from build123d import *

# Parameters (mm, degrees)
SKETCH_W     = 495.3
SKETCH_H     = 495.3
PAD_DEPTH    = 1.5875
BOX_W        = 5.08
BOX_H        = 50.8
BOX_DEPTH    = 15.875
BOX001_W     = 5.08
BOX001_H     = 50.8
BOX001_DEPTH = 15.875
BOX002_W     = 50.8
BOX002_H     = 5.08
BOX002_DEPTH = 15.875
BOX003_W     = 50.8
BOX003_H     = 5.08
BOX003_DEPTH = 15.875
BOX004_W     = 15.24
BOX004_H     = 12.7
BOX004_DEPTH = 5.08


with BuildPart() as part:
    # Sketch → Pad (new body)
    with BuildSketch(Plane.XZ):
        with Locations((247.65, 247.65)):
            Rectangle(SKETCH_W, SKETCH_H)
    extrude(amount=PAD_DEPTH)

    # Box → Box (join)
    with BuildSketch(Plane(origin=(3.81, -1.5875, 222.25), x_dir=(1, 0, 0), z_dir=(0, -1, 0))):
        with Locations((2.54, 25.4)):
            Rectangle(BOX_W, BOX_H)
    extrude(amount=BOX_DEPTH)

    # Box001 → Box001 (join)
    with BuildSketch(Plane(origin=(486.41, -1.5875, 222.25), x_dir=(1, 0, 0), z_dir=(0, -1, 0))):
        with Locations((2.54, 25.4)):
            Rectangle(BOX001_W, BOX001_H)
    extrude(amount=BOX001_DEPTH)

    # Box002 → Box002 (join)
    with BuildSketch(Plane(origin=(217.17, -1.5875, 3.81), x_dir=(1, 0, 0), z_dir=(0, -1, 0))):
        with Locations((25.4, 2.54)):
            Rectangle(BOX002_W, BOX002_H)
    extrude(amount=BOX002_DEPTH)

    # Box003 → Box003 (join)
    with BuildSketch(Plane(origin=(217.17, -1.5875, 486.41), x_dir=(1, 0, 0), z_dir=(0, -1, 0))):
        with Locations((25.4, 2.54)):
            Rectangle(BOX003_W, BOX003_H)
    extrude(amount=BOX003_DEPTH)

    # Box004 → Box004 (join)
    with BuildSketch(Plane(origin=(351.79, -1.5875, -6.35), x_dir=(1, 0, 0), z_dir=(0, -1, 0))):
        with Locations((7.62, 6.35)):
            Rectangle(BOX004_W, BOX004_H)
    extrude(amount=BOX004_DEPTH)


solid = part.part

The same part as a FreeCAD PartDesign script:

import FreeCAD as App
import Part
import Sketcher

V = App.Vector
Q = App.Units.Quantity

doc = App.newDocument("Part")
params = doc.addObject("Spreadsheet::Sheet", "Params")
for row, (alias, value) in enumerate([
    ("sketch1_width", "19.5 in"),
    ("pad1_length", "0.0625 in"),
    ("sketch2_height", "2 in"),
    ("sketch2_width", "0.2 in"),
    ("pad2_length", "0.625 in"),
    ("sketch3_height", "2 in"),
    ("sketch3_width", "0.2 in"),
    ("pad3_length", "0.625 in"),
    ("sketch4_width", "2 in"),
    ("sketch4_height", "0.2 in"),
    ("pad4_length", "0.625 in"),
    ("sketch5_width", "2 in"),
    ("sketch5_height", "0.2 in"),
    ("pad5_length", "0.625 in"),
    ("sketch6_width", "0.6 in"),
    ("sketch6_height", "0.5 in"),
    ("pad6_length", "0.2 in"),
], start=1):
    params.set(f"A{row}", alias)
    params.set(f"B{row}", "=" + value)
    params.setAlias(f"B{row}", alias)

body = doc.addObject("PartDesign::Body", "Body")

# Sketch on XZ plane
sketch1 = doc.addObject("Sketcher::SketchObject", "Sketch")
body.addObject(sketch1)
sketch1.AttachmentSupport = (doc.XZ_Plane, [""])
sketch1.MapMode = "FlatFace"
sketch1.addGeometry([
    Part.LineSegment(V(0, 495, 0), V(0, 0, 0)),
    Part.LineSegment(V(0, 0, 0), V(495, 0, 0)),
    Part.LineSegment(V(495, 0, 0), V(495, 495, 0)),
    Part.LineSegment(V(495, 495, 0), V(0, 495, 0)),
], False)
sketch1.addConstraint([
    Sketcher.Constraint("Coincident", 0, 2, 1, 1),
    Sketcher.Constraint("Coincident", 1, 2, 2, 1),
    Sketcher.Constraint("Coincident", 2, 2, 3, 1),
    Sketcher.Constraint("Coincident", 3, 2, 0, 1),
    Sketcher.Constraint("Vertical", 0),
    Sketcher.Constraint("Horizontal", 1),
    Sketcher.Constraint("Vertical", 2),
    Sketcher.Constraint("Horizontal", 3),
    Sketcher.Constraint("Coincident", 0, 2, -1, 1),
    Sketcher.Constraint("Equal", 3, 0),
    Sketcher.Constraint("DistanceX", 1, 1, 1, 2, Q("19.5 in")),
])
sketch1.setExpression("Constraints[10]", "Params.sketch1_width")
pad1 = doc.addObject("PartDesign::Pad", "Pad")
body.addObject(pad1)
pad1.Profile = sketch1
pad1.setExpression("Length", "Params.pad1_length")

# Sketch on XZ plane
sketch2 = doc.addObject("Sketcher::SketchObject", "Sketch001")
body.addObject(sketch2)
sketch2.AttachmentSupport = (doc.XZ_Plane, [""])
sketch2.MapMode = "FlatFace"
sketch2.AttachmentOffset = App.Placement(V(0, 0, 0.0625 * 25.4), App.Rotation())
sketch2.addGeometry([
    Part.LineSegment(V(4, 273, 0), V(4, 222, 0)),
    Part.LineSegment(V(4, 222, 0), V(9, 222, 0)),
    Part.LineSegment(V(9, 222, 0), V(9, 273, 0)),
    Part.LineSegment(V(9, 273, 0), V(4, 273, 0)),
], False)
sketch2.addConstraint([
    Sketcher.Constraint("Coincident", 0, 2, 1, 1),
    Sketcher.Constraint("Coincident", 1, 2, 2, 1),
    Sketcher.Constraint("Coincident", 2, 2, 3, 1),
    Sketcher.Constraint("Coincident", 3, 2, 0, 1),
    Sketcher.Constraint("Vertical", 0),
    Sketcher.Constraint("Horizontal", 1),
    Sketcher.Constraint("Vertical", 2),
    Sketcher.Constraint("Horizontal", 3),
    Sketcher.Constraint("DistanceY", 0, 2, 0, 1, Q("2 in")),
    Sketcher.Constraint("DistanceX", 1, 1, 1, 2, Q("0.2 in")),
    Sketcher.Constraint("DistanceX", -1, 1, 0, 2, Q("0.15 in")),
    Sketcher.Constraint("DistanceY", -1, 1, 0, 2, Q("8.75 in")),
])
sketch2.setExpression("Constraints[8]", "Params.sketch2_height")
sketch2.setExpression("Constraints[9]", "Params.sketch2_width")
pad2 = doc.addObject("PartDesign::Pad", "Pad001")
body.addObject(pad2)
pad2.Profile = sketch2
pad2.setExpression("Length", "Params.pad2_length")

# Sketch on XZ plane
sketch3 = doc.addObject("Sketcher::SketchObject", "Sketch002")
body.addObject(sketch3)
sketch3.AttachmentSupport = (doc.XZ_Plane, [""])
sketch3.MapMode = "FlatFace"
sketch3.AttachmentOffset = App.Placement(V(0, 0, 0.0625 * 25.4), App.Rotation())
sketch3.addGeometry([
    Part.LineSegment(V(486, 273, 0), V(486, 222, 0)),
    Part.LineSegment(V(486, 222, 0), V(491, 222, 0)),
    Part.LineSegment(V(491, 222, 0), V(491, 273, 0)),
    Part.LineSegment(V(491, 273, 0), V(486, 273, 0)),
], False)
sketch3.addConstraint([
    Sketcher.Constraint("Coincident", 0, 2, 1, 1),
    Sketcher.Constraint("Coincident", 1, 2, 2, 1),
    Sketcher.Constraint("Coincident", 2, 2, 3, 1),
    Sketcher.Constraint("Coincident", 3, 2, 0, 1),
    Sketcher.Constraint("Vertical", 0),
    Sketcher.Constraint("Horizontal", 1),
    Sketcher.Constraint("Vertical", 2),
    Sketcher.Constraint("Horizontal", 3),
    Sketcher.Constraint("DistanceY", 0, 2, 0, 1, Q("2 in")),
    Sketcher.Constraint("DistanceX", 1, 1, 1, 2, Q("0.2 in")),
    Sketcher.Constraint("DistanceX", -1, 1, 0, 2, Q("19.15 in")),
    Sketcher.Constraint("DistanceY", -1, 1, 0, 2, Q("8.75 in")),
])
sketch3.setExpression("Constraints[8]", "Params.sketch3_height")
sketch3.setExpression("Constraints[9]", "Params.sketch3_width")
pad3 = doc.addObject("PartDesign::Pad", "Pad002")
body.addObject(pad3)
pad3.Profile = sketch3
pad3.setExpression("Length", "Params.pad3_length")

# Sketch on XZ plane
sketch4 = doc.addObject("Sketcher::SketchObject", "Sketch003")
body.addObject(sketch4)
sketch4.AttachmentSupport = (doc.XZ_Plane, [""])
sketch4.MapMode = "FlatFace"
sketch4.AttachmentOffset = App.Placement(V(0, 0, 0.0625 * 25.4), App.Rotation())
sketch4.addGeometry([
    Part.LineSegment(V(217, 9, 0), V(217, 4, 0)),
    Part.LineSegment(V(217, 4, 0), V(268, 4, 0)),
    Part.LineSegment(V(268, 4, 0), V(268, 9, 0)),
    Part.LineSegment(V(268, 9, 0), V(217, 9, 0)),
], False)
sketch4.addConstraint([
    Sketcher.Constraint("Coincident", 0, 2, 1, 1),
    Sketcher.Constraint("Coincident", 1, 2, 2, 1),
    Sketcher.Constraint("Coincident", 2, 2, 3, 1),
    Sketcher.Constraint("Coincident", 3, 2, 0, 1),
    Sketcher.Constraint("Vertical", 0),
    Sketcher.Constraint("Horizontal", 1),
    Sketcher.Constraint("Vertical", 2),
    Sketcher.Constraint("Horizontal", 3),
    Sketcher.Constraint("DistanceX", 1, 1, 1, 2, Q("2 in")),
    Sketcher.Constraint("DistanceY", 0, 2, 0, 1, Q("0.2 in")),
    Sketcher.Constraint("DistanceX", -1, 1, 0, 2, Q("8.55 in")),
    Sketcher.Constraint("DistanceY", -1, 1, 0, 2, Q("0.15 in")),
])
sketch4.setExpression("Constraints[8]", "Params.sketch4_width")
sketch4.setExpression("Constraints[9]", "Params.sketch4_height")
pad4 = doc.addObject("PartDesign::Pad", "Pad003")
body.addObject(pad4)
pad4.Profile = sketch4
pad4.setExpression("Length", "Params.pad4_length")

# Sketch on XZ plane
sketch5 = doc.addObject("Sketcher::SketchObject", "Sketch004")
body.addObject(sketch5)
sketch5.AttachmentSupport = (doc.XZ_Plane, [""])
sketch5.MapMode = "FlatFace"
sketch5.AttachmentOffset = App.Placement(V(0, 0, 0.0625 * 25.4), App.Rotation())
sketch5.addGeometry([
    Part.LineSegment(V(217, 491, 0), V(217, 486, 0)),
    Part.LineSegment(V(217, 486, 0), V(268, 486, 0)),
    Part.LineSegment(V(268, 486, 0), V(268, 491, 0)),
    Part.LineSegment(V(268, 491, 0), V(217, 491, 0)),
], False)
sketch5.addConstraint([
    Sketcher.Constraint("Coincident", 0, 2, 1, 1),
    Sketcher.Constraint("Coincident", 1, 2, 2, 1),
    Sketcher.Constraint("Coincident", 2, 2, 3, 1),
    Sketcher.Constraint("Coincident", 3, 2, 0, 1),
    Sketcher.Constraint("Vertical", 0),
    Sketcher.Constraint("Horizontal", 1),
    Sketcher.Constraint("Vertical", 2),
    Sketcher.Constraint("Horizontal", 3),
    Sketcher.Constraint("DistanceX", 1, 1, 1, 2, Q("2 in")),
    Sketcher.Constraint("DistanceY", 0, 2, 0, 1, Q("0.2 in")),
    Sketcher.Constraint("DistanceX", -1, 1, 0, 2, Q("8.55 in")),
    Sketcher.Constraint("DistanceY", -1, 1, 0, 2, Q("19.15 in")),
])
sketch5.setExpression("Constraints[8]", "Params.sketch5_width")
sketch5.setExpression("Constraints[9]", "Params.sketch5_height")
pad5 = doc.addObject("PartDesign::Pad", "Pad004")
body.addObject(pad5)
pad5.Profile = sketch5
pad5.setExpression("Length", "Params.pad5_length")

# Sketch on XZ plane
sketch6 = doc.addObject("Sketcher::SketchObject", "Sketch005")
body.addObject(sketch6)
sketch6.AttachmentSupport = (doc.XZ_Plane, [""])
sketch6.MapMode = "FlatFace"
sketch6.AttachmentOffset = App.Placement(V(0, 0, 0.0625 * 25.4), App.Rotation())
sketch6.addGeometry([
    Part.LineSegment(V(352, 6, 0), V(352, -6, 0)),
    Part.LineSegment(V(352, -6, 0), V(367, -6, 0)),
    Part.LineSegment(V(367, -6, 0), V(367, 6, 0)),
    Part.LineSegment(V(367, 6, 0), V(352, 6, 0)),
], False)
sketch6.addConstraint([
    Sketcher.Constraint("Coincident", 0, 2, 1, 1),
    Sketcher.Constraint("Coincident", 1, 2, 2, 1),
    Sketcher.Constraint("Coincident", 2, 2, 3, 1),
    Sketcher.Constraint("Coincident", 3, 2, 0, 1),
    Sketcher.Constraint("Vertical", 0),
    Sketcher.Constraint("Horizontal", 1),
    Sketcher.Constraint("Vertical", 2),
    Sketcher.Constraint("Horizontal", 3),
    Sketcher.Constraint("DistanceX", 1, 1, 1, 2, Q("0.6 in")),
    Sketcher.Constraint("DistanceY", 0, 2, 0, 1, Q("0.5 in")),
    Sketcher.Constraint("DistanceX", -1, 1, 0, 2, Q("13.85 in")),
    Sketcher.Constraint("DistanceY", 0, 2, -1, 1, Q("0.25 in")),
])
sketch6.setExpression("Constraints[8]", "Params.sketch6_width")
sketch6.setExpression("Constraints[9]", "Params.sketch6_height")
pad6 = doc.addObject("PartDesign::Pad", "Pad005")
body.addObject(pad6)
pad6.Profile = sketch6
pad6.setExpression("Length", "Params.pad6_length")

doc.recompute()
